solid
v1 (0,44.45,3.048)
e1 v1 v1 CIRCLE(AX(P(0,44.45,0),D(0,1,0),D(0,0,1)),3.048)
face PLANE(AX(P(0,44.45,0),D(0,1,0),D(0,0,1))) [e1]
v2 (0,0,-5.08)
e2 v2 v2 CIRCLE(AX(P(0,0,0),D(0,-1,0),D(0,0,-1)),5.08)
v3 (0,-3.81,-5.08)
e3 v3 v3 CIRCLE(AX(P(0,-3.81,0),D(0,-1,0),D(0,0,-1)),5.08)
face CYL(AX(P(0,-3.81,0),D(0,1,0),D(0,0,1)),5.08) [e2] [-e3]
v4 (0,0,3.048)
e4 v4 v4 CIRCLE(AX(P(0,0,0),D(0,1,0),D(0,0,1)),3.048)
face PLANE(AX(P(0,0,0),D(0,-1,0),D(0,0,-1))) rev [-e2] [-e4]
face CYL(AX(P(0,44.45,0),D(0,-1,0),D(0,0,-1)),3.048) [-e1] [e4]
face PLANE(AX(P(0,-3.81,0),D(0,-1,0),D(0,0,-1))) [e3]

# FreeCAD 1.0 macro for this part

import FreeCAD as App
import Part
import Sketcher

V = App.Vector
Q = App.Units.Quantity

doc = App.newDocument("Part")
body = doc.addObject("PartDesign::Body", "Body")

# Sketch on XZ plane
sketch1 = body.newObject("Sketcher::SketchObject", "Sketch")
sketch1.AttachmentSupport = (doc.getObject("XZ_Plane"), [""])
sketch1.MapMode = "FlatFace"
sketch1.addGeometry(Part.Circle(V(0, 0, 0), V(0, 0, 1), 3), False)
sketch1.addConstraint([
    Sketcher.Constraint("Coincident", 0, 3, -1, 1),
    Sketcher.Constraint("Diameter", 0, Q("0.24 in")),
])
pad1 = body.newObject("PartDesign::Pad", "Pad")
pad1.Profile = sketch1
pad1.Length = Q("1.75 in")
pad1.Reversed = True

# Sketch on XZ plane
sketch2 = body.newObject("Sketcher::SketchObject", "Sketch001")
sketch2.AttachmentSupport = (doc.getObject("XZ_Plane"), [""])
sketch2.MapMode = "FlatFace"
sketch2.addGeometry(Part.Circle(V(0, 0, 0), V(0, 0, 1), 5), False)
sketch2.addConstraint([
    Sketcher.Constraint("Coincident", 0, 3, -1, 1),
    Sketcher.Constraint("Diameter", 0, Q("0.4 in")),
])
pad2 = body.newObject("PartDesign::Pad", "Pad001")
pad2.Profile = sketch2
pad2.Length = Q("0.15 in")

doc.recompute()
